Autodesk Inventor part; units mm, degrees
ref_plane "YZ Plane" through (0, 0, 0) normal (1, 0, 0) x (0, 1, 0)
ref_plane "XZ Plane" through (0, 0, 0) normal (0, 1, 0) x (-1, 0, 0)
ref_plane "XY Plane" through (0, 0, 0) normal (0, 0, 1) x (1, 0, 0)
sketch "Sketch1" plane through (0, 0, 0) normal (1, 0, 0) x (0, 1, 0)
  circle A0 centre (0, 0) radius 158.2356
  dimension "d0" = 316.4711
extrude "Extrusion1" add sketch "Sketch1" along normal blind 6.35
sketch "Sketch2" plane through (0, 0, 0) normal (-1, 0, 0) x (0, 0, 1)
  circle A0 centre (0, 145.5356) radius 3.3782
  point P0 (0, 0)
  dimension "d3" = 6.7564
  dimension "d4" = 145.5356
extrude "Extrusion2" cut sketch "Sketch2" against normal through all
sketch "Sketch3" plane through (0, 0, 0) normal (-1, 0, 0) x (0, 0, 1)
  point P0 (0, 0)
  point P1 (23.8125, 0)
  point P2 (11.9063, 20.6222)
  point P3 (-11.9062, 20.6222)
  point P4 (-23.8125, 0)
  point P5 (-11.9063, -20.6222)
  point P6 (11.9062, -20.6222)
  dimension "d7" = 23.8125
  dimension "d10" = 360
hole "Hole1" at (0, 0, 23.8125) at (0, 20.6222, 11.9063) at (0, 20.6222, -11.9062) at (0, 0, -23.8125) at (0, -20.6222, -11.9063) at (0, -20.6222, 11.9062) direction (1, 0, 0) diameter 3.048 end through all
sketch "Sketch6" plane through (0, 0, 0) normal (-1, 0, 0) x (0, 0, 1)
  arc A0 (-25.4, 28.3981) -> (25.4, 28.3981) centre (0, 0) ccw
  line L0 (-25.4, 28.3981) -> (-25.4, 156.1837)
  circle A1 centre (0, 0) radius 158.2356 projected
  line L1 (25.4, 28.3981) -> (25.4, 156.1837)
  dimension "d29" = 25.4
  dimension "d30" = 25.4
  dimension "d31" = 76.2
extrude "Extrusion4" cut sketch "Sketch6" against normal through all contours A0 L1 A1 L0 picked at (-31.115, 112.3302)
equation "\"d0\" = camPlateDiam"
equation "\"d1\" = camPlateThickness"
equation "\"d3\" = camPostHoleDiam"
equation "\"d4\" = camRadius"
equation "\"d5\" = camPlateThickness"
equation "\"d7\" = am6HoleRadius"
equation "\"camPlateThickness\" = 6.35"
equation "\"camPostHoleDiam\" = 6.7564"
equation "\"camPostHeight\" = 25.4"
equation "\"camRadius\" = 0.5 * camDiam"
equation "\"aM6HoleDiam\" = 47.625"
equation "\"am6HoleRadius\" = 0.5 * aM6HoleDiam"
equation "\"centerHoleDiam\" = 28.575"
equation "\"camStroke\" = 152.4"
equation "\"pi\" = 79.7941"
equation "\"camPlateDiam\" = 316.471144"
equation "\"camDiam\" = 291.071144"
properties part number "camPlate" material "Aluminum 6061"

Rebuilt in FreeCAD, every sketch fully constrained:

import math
import FreeCAD as App
import Part
import Sketcher

V = App.Vector
Q = App.Units.Quantity

doc = App.newDocument("Part")
body = doc.addObject("PartDesign::Body", "Body")

# Sketch on YZ plane
sketch1 = body.newObject("Sketcher::SketchObject", "Sketch")
sketch1.AttachmentSupport = (doc.getObject("YZ_Plane"), [""])
sketch1.MapMode = "FlatFace"
sketch1.addGeometry(Part.Circle(V(0, 0, 0), V(0, 0, 1), 158.2356), False)
sketch1.addConstraint([
    Sketcher.Constraint("Coincident", 0, 3, -1, 1),
    Sketcher.Constraint("Diameter", 0, Q("12.4595 in")),
])
pad1 = body.newObject("PartDesign::Pad", "Pad")
pad1.Profile = sketch1
pad1.Length = Q("0.25 in")

# Sketch on YZ plane
sketch2 = body.newObject("Sketcher::SketchObject", "Sketch001")
sketch2.AttachmentSupport = (doc.getObject("YZ_Plane"), [""])
sketch2.MapMode = "FlatFace"
sketch2.addGeometry(Part.Circle(V(145.5356, 0, 0), V(0, 0, 1), 3.3782), False)
sketch2.addConstraint([
    Sketcher.Constraint("PointOnObject", 0, 3, -1),
    Sketcher.Constraint("Diameter", 0, Q("0.266 in")),
    Sketcher.Constraint("DistanceX", -1, 1, 0, 3, Q("145.5356 mm")),
])
pocket1 = body.newObject("PartDesign::Pocket", "Pocket")
pocket1.Profile = sketch2
pocket1.Type = "ThroughAll"
pocket1.Reversed = True

# Sketch on YZ plane
sketch3 = body.newObject("Sketcher::SketchObject", "Sketch002")
sketch3.AttachmentSupport = (doc.getObject("YZ_Plane"), [""])
sketch3.MapMode = "FlatFace"
sketch3.addGeometry([
    Part.Circle(V(0, 23.8125, 0), V(0, 0, 1), 1.524),  # 0
    Part.Circle(V(20.6222, 11.9063, 0), V(0, 0, 1), 1.524),  # 1
    Part.Circle(V(20.6222, -11.9062, 0), V(0, 0, 1), 1.524),  # 2
    Part.Circle(V(0, -23.8125, 0), V(0, 0, 1), 1.524),  # 3
    Part.Circle(V(-20.6222, -11.9063, 0), V(0, 0, 1), 1.524),  # 4
    Part.Circle(V(-20.6222, 11.9062, 0), V(0, 0, 1), 1.524),  # 5
], False)
sketch3.addConstraint([
    Sketcher.Constraint("Equal", 0, 1),
    Sketcher.Constraint("Equal", 1, 2),
    Sketcher.Constraint("Equal", 2, 3),
    Sketcher.Constraint("Equal", 3, 4),
    Sketcher.Constraint("Equal", 4, 5),
    Sketcher.Constraint("Symmetric", 0, 3, 3, 3, -1, 1),
    Sketcher.Constraint("Symmetric", 1, 3, 4, 3, -1, 1),
    Sketcher.Constraint("Symmetric", 2, 3, 5, 3, -1, 1),
    Sketcher.Constraint("Symmetric", 2, 3, 4, 3, -2),
    Sketcher.Constraint("PointOnObject", 0, 3, -2),
    Sketcher.Constraint("Diameter", 0, Q("0.12 in")),
    Sketcher.Constraint("DistanceY", -1, 1, 0, 3, Q("0.9375 in")),
    Sketcher.Constraint("DistanceY", -1, 1, 1, 3, Q("0.468752 in")),
    Sketcher.Constraint("DistanceX", -1, 1, 1, 3, Q("0.8119 in")),
])
doc.recompute()
hole = body.newObject("PartDesign::Hole", "Hole")
hole.Profile = sketch3
hole.ThreadType = "None"
hole.Diameter = Q("0.12 in")
hole.DepthType = "ThroughAll"
hole.Reversed = True

# Sketch on YZ plane
sketch4 = body.newObject("Sketcher::SketchObject", "Sketch003")
sketch4.AttachmentSupport = (doc.getObject("YZ_Plane"), [""])
sketch4.MapMode = "FlatFace"
sketch4.addGeometry([
    Part.ArcOfCircle(Part.Circle(V(0, 0, 0), V(0, 0, 1), 38.100027), math.radians(41.810278), math.radians(318.189722)),
    Part.LineSegment(V(28.3981, -25.4, 0), V(156.1837, -25.4, 0)),
    Part.ArcOfCircle(Part.Circle(V(0, 0, 0), V(0, 0, 1), 158.2356), math.radians(9.237087), math.radians(350.762913)),
    Part.LineSegment(V(156.1837, 25.4, 0), V(28.3981, 25.4, 0)),
], False)
sketch4.addConstraint([
    Sketcher.Constraint("Coincident", 0, 2, 1, 1),
    Sketcher.Constraint("Coincident", 1, 2, 2, 2),
    Sketcher.Constraint("Coincident", 2, 1, 3, 1),
    Sketcher.Constraint("Coincident", 3, 2, 0, 1),
    Sketcher.Constraint("Horizontal", 1),
    Sketcher.Constraint("Horizontal", 3),
    Sketcher.Constraint("Coincident", 0, 3, -1, 1),
    Sketcher.Constraint("Coincident", 2, 3, -1, 1),
    Sketcher.Constraint("Vertical", 1, 2, 2, 1),
    Sketcher.Constraint("Radius", 0, Q("1.5 in")),
    Sketcher.Constraint("DistanceY", 0, 2, -1, 1, Q("1 in")),
    Sketcher.Constraint("Radius", 2, Q("158.2356 mm")),
])
pocket2 = body.newObject("PartDesign::Pocket", "Pocket001")
pocket2.Profile = sketch4
pocket2.Type = "ThroughAll"
pocket2.Reversed = True

doc.recompute()
